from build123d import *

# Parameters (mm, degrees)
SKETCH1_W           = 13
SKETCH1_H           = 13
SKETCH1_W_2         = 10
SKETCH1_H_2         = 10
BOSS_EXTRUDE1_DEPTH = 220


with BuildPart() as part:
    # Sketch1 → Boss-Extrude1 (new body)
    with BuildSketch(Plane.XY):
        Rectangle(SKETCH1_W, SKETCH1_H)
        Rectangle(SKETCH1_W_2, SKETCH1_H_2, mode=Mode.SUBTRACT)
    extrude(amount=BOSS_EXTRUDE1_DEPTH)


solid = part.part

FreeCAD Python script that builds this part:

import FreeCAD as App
import Part
import Sketcher
from FreeCAD import Vector
Q = App.Units.Quantity

doc = App.newDocument("Part")
body = doc.addObject("PartDesign::Body", "Body")

sketch1 = doc.addObject("Sketcher::SketchObject", "Sketch")
body.addObject(sketch1)
sketch1.AttachmentSupport = (doc.XY_Plane, [""])
sketch1.MapMode = "FlatFace"
sketch1.addGeometry(Part.LineSegment(Vector(-6.5, 6.5, 0), Vector(-6.5, -6.5, 0)), False)
sketch1.addGeometry(Part.LineSegment(Vector(-6.5, -6.5, 0), Vector(6.5, -6.5, 0)), False)
sketch1.addGeometry(Part.LineSegment(Vector(6.5, -6.5, 0), Vector(6.5, 6.5, 0)), False)
sketch1.addGeometry(Part.LineSegment(Vector(6.5, 6.5, 0), Vector(-6.5, 6.5, 0)), False)
sketch1.addGeometry(Part.LineSegment(Vector(5, -5, 0), Vector(-5, -5, 0)), False)
sketch1.addGeometry(Part.LineSegment(Vector(-5, -5, 0), Vector(-5, 5, 0)), False)
sketch1.addGeometry(Part.LineSegment(Vector(-5, 5, 0), Vector(5, 5, 0)), False)
sketch1.addGeometry(Part.LineSegment(Vector(5, 5, 0), Vector(5, -5, 0)), False)
sketch1.addConstraint(Sketcher.Constraint("Coincident", 0, 2, 1, 1))
sketch1.addConstraint(Sketcher.Constraint("Coincident", 1, 2, 2, 1))
sketch1.addConstraint(Sketcher.Constraint("Coincident", 2, 2, 3, 1))
sketch1.addConstraint(Sketcher.Constraint("Coincident", 3, 2, 0, 1))
sketch1.addConstraint(Sketcher.Constraint("Coincident", 4, 2, 5, 1))
sketch1.addConstraint(Sketcher.Constraint("Coincident", 5, 2, 6, 1))
sketch1.addConstraint(Sketcher.Constraint("Coincident", 6, 2, 7, 1))
sketch1.addConstraint(Sketcher.Constraint("Coincident", 7, 2, 4, 1))
sketch1.addConstraint(Sketcher.Constraint("Vertical", 0))
sketch1.addConstraint(Sketcher.Constraint("Horizontal", 1))
sketch1.addConstraint(Sketcher.Constraint("Vertical", 2))
sketch1.addConstraint(Sketcher.Constraint("Horizontal", 3))
sketch1.addConstraint(Sketcher.Constraint("Horizontal", 4))
sketch1.addConstraint(Sketcher.Constraint("Vertical", 5))
sketch1.addConstraint(Sketcher.Constraint("Horizontal", 6))
sketch1.addConstraint(Sketcher.Constraint("Vertical", 7))
sketch1.addConstraint(Sketcher.Constraint("Symmetric", 0, 2, 2, 2, -1, 1))
sketch1.addConstraint(Sketcher.Constraint("Symmetric", 4, 2, 6, 2, -1, 1))
sketch1.addConstraint(Sketcher.Constraint("Equal", 3, 0))
sketch1.addConstraint(Sketcher.Constraint("Equal", 6, 5))
sketch1.addConstraint(Sketcher.Constraint("DistanceX", 1, 1, 1, 2, Q("13 mm")))
sketch1.addConstraint(Sketcher.Constraint("DistanceX", 4, 2, 4, 1, Q("10 mm")))
pad1 = doc.addObject("PartDesign::Pad", "Pad")
body.addObject(pad1)
pad1.Profile = sketch1
pad1.Length = 220

doc.recompute()
